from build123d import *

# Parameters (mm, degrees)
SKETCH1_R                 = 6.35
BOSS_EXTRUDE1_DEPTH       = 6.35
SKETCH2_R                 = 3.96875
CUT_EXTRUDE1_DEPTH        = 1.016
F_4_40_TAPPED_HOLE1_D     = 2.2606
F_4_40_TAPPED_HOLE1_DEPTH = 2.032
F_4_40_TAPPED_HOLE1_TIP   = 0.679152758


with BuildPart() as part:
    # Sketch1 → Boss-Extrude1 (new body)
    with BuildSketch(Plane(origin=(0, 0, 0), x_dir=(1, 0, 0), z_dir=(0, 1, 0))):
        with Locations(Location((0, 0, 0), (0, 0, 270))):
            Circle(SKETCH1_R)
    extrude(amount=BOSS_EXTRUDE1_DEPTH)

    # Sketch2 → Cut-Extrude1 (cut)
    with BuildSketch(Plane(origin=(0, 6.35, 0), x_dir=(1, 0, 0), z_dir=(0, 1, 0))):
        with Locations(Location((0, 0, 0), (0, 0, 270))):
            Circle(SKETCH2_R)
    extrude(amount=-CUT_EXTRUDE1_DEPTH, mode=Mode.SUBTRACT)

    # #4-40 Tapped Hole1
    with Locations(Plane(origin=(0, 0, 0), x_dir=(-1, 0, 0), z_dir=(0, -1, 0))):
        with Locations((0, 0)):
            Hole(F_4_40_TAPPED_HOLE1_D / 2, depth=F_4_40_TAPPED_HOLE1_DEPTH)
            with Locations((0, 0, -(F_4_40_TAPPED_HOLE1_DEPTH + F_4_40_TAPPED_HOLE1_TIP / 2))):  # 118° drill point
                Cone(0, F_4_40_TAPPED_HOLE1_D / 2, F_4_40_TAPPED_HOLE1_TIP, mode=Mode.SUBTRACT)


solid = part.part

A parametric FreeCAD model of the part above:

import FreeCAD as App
import Part
import Sketcher
Q = App.Units.Quantity

doc = App.newDocument("Part")
body = doc.addObject("PartDesign::Body", "Body")

sketch1 = body.newObject("Sketcher::SketchObject", "Sketch")
sketch1.AttachmentSupport = (doc.getObject("XZ_Plane"), [""])
sketch1.MapMode = "FlatFace"
sketch1.addGeometry(Part.Circle(App.Vector(0, 0, 0), App.Vector(0, 0, 1), 6), False)
sketch1.addConstraint(Sketcher.Constraint("Coincident", 0, 3, -1, 1))
sketch1.addConstraint(Sketcher.Constraint("Diameter", 0, Q("0.5 in")))
pad1 = body.newObject("PartDesign::Pad", "Pad")
pad1.Profile = sketch1
pad1.Length = Q("0.25 in")
pad1.Reversed = True

sketch2 = body.newObject("Sketcher::SketchObject", "Sketch001")
sketch2.AttachmentSupport = (doc.getObject("XZ_Plane"), [""])
sketch2.MapMode = "FlatFace"
sketch2.AttachmentOffset = App.Placement(App.Vector(0, 0, -0.25 * 25.4), App.Rotation())
sketch2.addGeometry(Part.Circle(App.Vector(0, 0, 0), App.Vector(0, 0, 1), 4), False)
sketch2.addConstraint(Sketcher.Constraint("Coincident", 0, 3, -1, 1))
sketch2.addConstraint(Sketcher.Constraint("Diameter", 0, Q("0.3125 in")))
pocket1 = body.newObject("PartDesign::Pocket", "Pocket")
pocket1.Profile = sketch2
pocket1.Length = Q("0.04 in")
pocket1.Reversed = True

sketch3 = body.newObject("Sketcher::SketchObject", "Sketch002")
sketch3.AttachmentSupport = (doc.getObject("XZ_Plane"), [""])
sketch3.MapMode = "FlatFace"
sketch3.addGeometry(Part.Circle(App.Vector(0, 0, 0), App.Vector(0, 0, 1), 1.1), False)
sketch3.addConstraint(Sketcher.Constraint("Coincident", 0, 3, -1, 1))
sketch3.addConstraint(Sketcher.Constraint("Diameter", 0, Q("0.089 in")))
doc.recompute()
hole = body.newObject("PartDesign::Hole", "Hole")
hole.Profile = sketch3
hole.ThreadType = "None"
hole.Diameter = Q("0.089 in")
hole.DepthType = "Dimension"
hole.Depth = Q("0.08 in")
hole.DrillPoint = "Angled"
hole.DrillPointAngle = 118

doc.recompute()
